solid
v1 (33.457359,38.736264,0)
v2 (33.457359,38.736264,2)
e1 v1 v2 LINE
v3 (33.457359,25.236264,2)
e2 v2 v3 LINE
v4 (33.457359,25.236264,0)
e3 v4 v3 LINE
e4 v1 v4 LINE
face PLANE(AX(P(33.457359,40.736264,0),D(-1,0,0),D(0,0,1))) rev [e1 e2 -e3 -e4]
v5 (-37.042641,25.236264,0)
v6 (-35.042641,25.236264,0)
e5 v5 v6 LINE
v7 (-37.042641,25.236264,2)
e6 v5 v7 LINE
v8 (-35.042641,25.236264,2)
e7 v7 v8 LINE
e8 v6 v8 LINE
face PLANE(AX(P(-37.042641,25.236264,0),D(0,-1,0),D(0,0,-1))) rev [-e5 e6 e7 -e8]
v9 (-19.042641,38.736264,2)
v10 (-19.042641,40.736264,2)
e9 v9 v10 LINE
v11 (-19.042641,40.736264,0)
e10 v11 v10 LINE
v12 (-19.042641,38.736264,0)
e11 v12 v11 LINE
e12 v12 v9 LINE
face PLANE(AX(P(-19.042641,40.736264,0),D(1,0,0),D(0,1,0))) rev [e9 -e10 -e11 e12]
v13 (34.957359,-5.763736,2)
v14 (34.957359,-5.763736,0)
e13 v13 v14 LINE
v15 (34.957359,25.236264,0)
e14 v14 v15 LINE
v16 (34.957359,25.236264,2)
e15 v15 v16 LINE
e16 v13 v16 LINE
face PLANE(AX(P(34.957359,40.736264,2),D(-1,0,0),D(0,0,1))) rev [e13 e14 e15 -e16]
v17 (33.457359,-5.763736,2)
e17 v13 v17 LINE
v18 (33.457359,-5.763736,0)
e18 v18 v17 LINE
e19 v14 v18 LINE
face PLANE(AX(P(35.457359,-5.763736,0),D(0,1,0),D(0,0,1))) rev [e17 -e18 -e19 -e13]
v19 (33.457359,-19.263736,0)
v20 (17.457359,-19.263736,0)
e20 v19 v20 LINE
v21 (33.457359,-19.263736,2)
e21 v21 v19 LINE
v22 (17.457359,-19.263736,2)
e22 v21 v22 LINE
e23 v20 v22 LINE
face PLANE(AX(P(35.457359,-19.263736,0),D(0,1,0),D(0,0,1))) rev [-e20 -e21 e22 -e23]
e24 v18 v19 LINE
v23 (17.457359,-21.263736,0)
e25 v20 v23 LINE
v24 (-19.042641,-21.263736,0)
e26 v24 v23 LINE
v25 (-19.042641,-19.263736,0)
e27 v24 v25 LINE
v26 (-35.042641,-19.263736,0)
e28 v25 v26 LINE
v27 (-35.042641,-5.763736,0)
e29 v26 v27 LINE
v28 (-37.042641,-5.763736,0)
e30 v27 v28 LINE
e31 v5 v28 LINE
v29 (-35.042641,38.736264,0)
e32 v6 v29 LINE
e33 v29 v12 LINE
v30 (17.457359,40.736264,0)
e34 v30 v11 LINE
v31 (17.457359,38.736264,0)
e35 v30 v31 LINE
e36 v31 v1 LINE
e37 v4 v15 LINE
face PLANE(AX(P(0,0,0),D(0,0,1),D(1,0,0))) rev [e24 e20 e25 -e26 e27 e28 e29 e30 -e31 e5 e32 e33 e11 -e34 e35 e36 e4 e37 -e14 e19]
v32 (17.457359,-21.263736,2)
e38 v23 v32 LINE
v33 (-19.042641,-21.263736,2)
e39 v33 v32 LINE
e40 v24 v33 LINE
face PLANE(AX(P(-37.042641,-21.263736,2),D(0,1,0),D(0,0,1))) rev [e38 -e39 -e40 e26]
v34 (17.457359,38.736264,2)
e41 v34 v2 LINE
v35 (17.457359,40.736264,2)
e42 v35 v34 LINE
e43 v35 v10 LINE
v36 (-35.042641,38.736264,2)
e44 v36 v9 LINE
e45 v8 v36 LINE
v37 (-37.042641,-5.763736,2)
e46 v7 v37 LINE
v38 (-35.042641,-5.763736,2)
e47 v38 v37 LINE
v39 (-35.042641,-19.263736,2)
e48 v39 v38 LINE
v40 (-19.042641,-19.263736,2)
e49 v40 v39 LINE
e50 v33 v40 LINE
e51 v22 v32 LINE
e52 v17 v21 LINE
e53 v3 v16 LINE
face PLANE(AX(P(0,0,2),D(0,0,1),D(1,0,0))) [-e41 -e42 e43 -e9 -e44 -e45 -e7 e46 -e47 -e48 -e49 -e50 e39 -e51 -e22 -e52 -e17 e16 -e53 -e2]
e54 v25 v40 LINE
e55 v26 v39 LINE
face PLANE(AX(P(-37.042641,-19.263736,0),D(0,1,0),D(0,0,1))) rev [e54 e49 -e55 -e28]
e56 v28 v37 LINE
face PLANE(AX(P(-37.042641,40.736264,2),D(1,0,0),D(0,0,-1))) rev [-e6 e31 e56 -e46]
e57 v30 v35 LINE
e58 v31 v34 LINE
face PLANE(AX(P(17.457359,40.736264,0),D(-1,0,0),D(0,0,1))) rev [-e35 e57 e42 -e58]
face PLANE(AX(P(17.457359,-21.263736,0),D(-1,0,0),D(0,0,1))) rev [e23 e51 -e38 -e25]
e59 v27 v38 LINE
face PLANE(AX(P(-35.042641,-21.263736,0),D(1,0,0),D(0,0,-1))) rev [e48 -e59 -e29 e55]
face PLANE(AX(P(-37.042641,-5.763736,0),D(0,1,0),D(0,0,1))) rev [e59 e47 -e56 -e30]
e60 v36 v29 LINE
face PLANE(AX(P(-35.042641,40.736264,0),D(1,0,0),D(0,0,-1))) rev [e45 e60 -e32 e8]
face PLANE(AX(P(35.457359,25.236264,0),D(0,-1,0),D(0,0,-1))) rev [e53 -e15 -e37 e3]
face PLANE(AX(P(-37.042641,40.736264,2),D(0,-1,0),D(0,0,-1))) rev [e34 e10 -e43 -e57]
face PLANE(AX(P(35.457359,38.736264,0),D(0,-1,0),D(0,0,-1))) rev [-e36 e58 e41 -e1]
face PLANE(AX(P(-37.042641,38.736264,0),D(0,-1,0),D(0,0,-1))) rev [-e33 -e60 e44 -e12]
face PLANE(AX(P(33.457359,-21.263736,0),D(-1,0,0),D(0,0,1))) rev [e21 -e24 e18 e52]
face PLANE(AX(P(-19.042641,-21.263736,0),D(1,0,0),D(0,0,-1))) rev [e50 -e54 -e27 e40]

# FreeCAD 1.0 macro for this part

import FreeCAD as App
import Part
import Sketcher
from FreeCAD import Vector
Q = App.Units.Quantity


def add_polygon(sketch, points):
    """Adds a closed chain of lines whose ends are joined by coincident constraints."""
    first, n = sketch.GeometryCount, len(points)
    for a, b in zip(points, points[1:] + points[:1]):
        sketch.addGeometry(Part.LineSegment(App.Vector(*a, 0), App.Vector(*b, 0)), False)
    for i in range(n):
        sketch.addConstraint(Sketcher.Constraint("Coincident", first + i, 2, first + (i + 1) % n, 1))

doc = App.newDocument("Part")
body = doc.addObject("PartDesign::Body", "Body")

# Sketch on XY plane
sketch1 = body.newObject("Sketcher::SketchObject", "Sketch")
sketch1.AttachmentSupport = (doc.getObject("XY_Plane"), [""])
sketch1.MapMode = "FlatFace"
add_polygon(sketch1, [(-37, 41), (-37, -21), (35, -21), (35, 41)])  # lines 0-3
sketch1.addConstraint([
    Sketcher.Constraint("Vertical", 0),
    Sketcher.Constraint("Horizontal", 1),
    Sketcher.Constraint("Vertical", 2),
    Sketcher.Constraint("Horizontal", 3),
    Sketcher.Constraint("DistanceX", 1, 1, 1, 2, Q("72 mm")),
    Sketcher.Constraint("DistanceY", 0, 2, 0, 1, Q("62 mm")),
    Sketcher.Constraint("DistanceX", 0, 2, -1, 1, Q("37.042641 mm")),
    Sketcher.Constraint("DistanceY", 0, 2, -1, 1, Q("21.263736 mm")),
])
pad1 = body.newObject("PartDesign::Pad", "Pad")
pad1.Profile = sketch1
pad1.Length = 2

# Sketch on XY plane
sketch2 = body.newObject("Sketcher::SketchObject", "Sketch001")
sketch2.AttachmentSupport = (doc.getObject("XY_Plane"), [""])
sketch2.MapMode = "FlatFace"
sketch2.AttachmentOffset = App.Placement(Vector(0, 0, 2), App.Rotation())
add_polygon(sketch2, [(33.5, -5.8), (33.5, -21.3), (35.5, -21.3), (35.5, -5.8)])  # lines 0-3
add_polygon(sketch2, [(33.5, 40.7), (33.5, 25.2), (35.5, 25.2), (35.5, 40.7)])  # lines 4-7
add_polygon(sketch2, [(-37, 40.7), (-37, 25.2), (-35, 25.2), (-35, 40.7)])  # lines 8-11
add_polygon(sketch2, [(-37, -5.8), (-37, -21.3), (-35, -21.3), (-35, -5.8)])  # lines 12-15
sketch2.addConstraint([
    Sketcher.Constraint("Vertical", 0),
    Sketcher.Constraint("Horizontal", 1),
    Sketcher.Constraint("Vertical", 2),
    Sketcher.Constraint("Horizontal", 3),
    Sketcher.Constraint("Vertical", 4),
    Sketcher.Constraint("Horizontal", 5),
    Sketcher.Constraint("Vertical", 6),
    Sketcher.Constraint("Horizontal", 7),
    Sketcher.Constraint("Vertical", 8),
    Sketcher.Constraint("Horizontal", 9),
    Sketcher.Constraint("Vertical", 10),
    Sketcher.Constraint("Horizontal", 11),
    Sketcher.Constraint("Vertical", 12),
    Sketcher.Constraint("Horizontal", 13),
    Sketcher.Constraint("Vertical", 14),
    Sketcher.Constraint("Horizontal", 15),
    Sketcher.Constraint("Horizontal", 5, 2, 8, 2),
    Sketcher.Constraint("Horizontal", 7, 2, 10, 2),
    Sketcher.Constraint("Horizontal", 1, 2, 12, 2),
    Sketcher.Constraint("Horizontal", 3, 2, 14, 2),
    Sketcher.Constraint("Vertical", 3, 2, 4, 2),
    Sketcher.Constraint("Vertical", 2, 2, 5, 2),
    Sketcher.Constraint("Vertical", 11, 2, 12, 2),
    Sketcher.Constraint("Vertical", 10, 2, 13, 2),
    Sketcher.Constraint("Equal", 7, 9),
    Sketcher.Constraint("Equal", 2, 4),
    Sketcher.Constraint("DistanceX", 1, 1, 1, 2, Q("2 mm")),
    Sketcher.Constraint("DistanceY", 0, 2, 0, 1, Q("15.5 mm")),
    Sketcher.Constraint("DistanceY", 3, 2, 4, 2, Q("31 mm")),
    Sketcher.Constraint("DistanceX", 8, 2, 4, 2, Q("70.5 mm")),
    Sketcher.Constraint("DistanceX", -1, 1, 0, 2, Q("33.457359 mm")),
    Sketcher.Constraint("DistanceY", 0, 2, -1, 1, Q("21.263736 mm")),
])
pocket1 = body.newObject("PartDesign::Pocket", "Pocket")
pocket1.Profile = sketch2
pocket1.Type = "ThroughAll"

# Sketch on XY plane
sketch3 = body.newObject("Sketcher::SketchObject", "Sketch002")
sketch3.AttachmentSupport = (doc.getObject("XY_Plane"), [""])
sketch3.MapMode = "FlatFace"
sketch3.AttachmentOffset = App.Placement(Vector(0, 0, 2), App.Rotation())
add_polygon(sketch3, [(-37, 40.7), (-37, 38.7), (-19, 38.7), (-19, 40.7)])  # lines 0-3
add_polygon(sketch3, [(17.5, 40.7), (17.5, 38.7), (35.5, 38.7), (35.5, 40.7)])  # lines 4-7
add_polygon(sketch3, [(-37, -19.3), (-37, -21.3), (-19, -21.3), (-19, -19.3)])  # lines 8-11
add_polygon(sketch3, [(17.5, -19.3), (17.5, -21.3), (35.5, -21.3), (35.5, -19.3)])  # lines 12-15
sketch3.addConstraint([
    Sketcher.Constraint("Vertical", 0),
    Sketcher.Constraint("Horizontal", 1),
    Sketcher.Constraint("Vertical", 2),
    Sketcher.Constraint("Horizontal", 3),
    Sketcher.Constraint("Vertical", 4),
    Sketcher.Constraint("Horizontal", 5),
    Sketcher.Constraint("Vertical", 6),
    Sketcher.Constraint("Horizontal", 7),
    Sketcher.Constraint("Vertical", 8),
    Sketcher.Constraint("Horizontal", 9),
    Sketcher.Constraint("Vertical", 10),
    Sketcher.Constraint("Horizontal", 11),
    Sketcher.Constraint("Vertical", 12),
    Sketcher.Constraint("Horizontal", 13),
    Sketcher.Constraint("Vertical", 14),
    Sketcher.Constraint("Horizontal", 15),
    Sketcher.Constraint("Horizontal", 1, 2, 4, 2),
    Sketcher.Constraint("Horizontal", 3, 2, 6, 2),
    Sketcher.Constraint("Horizontal", 9, 2, 12, 2),
    Sketcher.Constraint("Horizontal", 11, 2, 14, 2),
    Sketcher.Constraint("Vertical", 3, 2, 8, 2),
    Sketcher.Constraint("Vertical", 2, 2, 9, 2),
    Sketcher.Constraint("Vertical", 7, 2, 12, 2),
    Sketcher.Constraint("Vertical", 6, 2, 13, 2),
    Sketcher.Constraint("Equal", 3, 5),
    Sketcher.Constraint("Equal", 6, 8),
    Sketcher.Constraint("DistanceX", 1, 1, 1, 2, Q("18 mm")),
    Sketcher.Constraint("DistanceY", 0, 2, 0, 1, Q("2 mm")),
    Sketcher.Constraint("DistanceY", 8, 2, 0, 2, Q("60 mm")),
    Sketcher.Constraint("DistanceX", 1, 2, 4, 2, Q("36.5 mm")),
    Sketcher.Constraint("DistanceX", 0, 2, -1, 1, Q("37.042641 mm")),
    Sketcher.Constraint("DistanceY", -1, 1, 0, 2, Q("38.736264 mm")),
])
pocket2 = body.newObject("PartDesign::Pocket", "Pocket001")
pocket2.Profile = sketch3
pocket2.Type = "ThroughAll"

doc.recompute()
